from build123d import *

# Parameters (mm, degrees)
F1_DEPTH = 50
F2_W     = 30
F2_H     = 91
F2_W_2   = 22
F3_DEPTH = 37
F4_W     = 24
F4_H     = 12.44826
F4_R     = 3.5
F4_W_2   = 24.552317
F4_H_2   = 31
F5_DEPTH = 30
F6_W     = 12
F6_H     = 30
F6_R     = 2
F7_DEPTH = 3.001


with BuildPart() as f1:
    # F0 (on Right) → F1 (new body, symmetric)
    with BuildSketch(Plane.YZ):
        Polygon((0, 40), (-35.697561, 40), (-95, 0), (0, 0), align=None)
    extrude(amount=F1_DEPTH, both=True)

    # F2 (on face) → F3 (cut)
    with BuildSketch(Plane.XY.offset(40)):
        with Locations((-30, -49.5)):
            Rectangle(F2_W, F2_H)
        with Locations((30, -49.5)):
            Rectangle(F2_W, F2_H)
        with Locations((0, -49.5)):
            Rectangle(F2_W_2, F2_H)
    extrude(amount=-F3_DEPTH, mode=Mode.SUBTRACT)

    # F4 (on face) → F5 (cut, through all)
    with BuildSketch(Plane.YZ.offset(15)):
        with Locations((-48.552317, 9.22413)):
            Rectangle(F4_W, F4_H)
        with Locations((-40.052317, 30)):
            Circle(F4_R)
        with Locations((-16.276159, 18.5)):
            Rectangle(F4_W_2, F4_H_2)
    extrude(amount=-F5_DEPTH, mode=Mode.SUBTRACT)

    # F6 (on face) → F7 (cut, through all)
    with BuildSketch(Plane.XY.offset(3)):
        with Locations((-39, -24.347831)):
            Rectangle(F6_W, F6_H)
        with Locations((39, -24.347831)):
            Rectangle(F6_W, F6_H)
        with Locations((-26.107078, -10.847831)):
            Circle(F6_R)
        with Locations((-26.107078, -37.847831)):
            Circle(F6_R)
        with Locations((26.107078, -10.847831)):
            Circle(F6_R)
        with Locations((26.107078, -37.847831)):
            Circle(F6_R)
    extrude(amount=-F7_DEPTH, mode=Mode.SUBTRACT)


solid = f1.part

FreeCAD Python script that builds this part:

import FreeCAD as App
import Part
import Sketcher

V = App.Vector
Q = App.Units.Quantity


def add_polygon(sketch, points):
    """Adds a closed chain of lines whose ends are joined by coincident constraints."""
    first, n = sketch.GeometryCount, len(points)
    for a, b in zip(points, points[1:] + points[:1]):
        sketch.addGeometry(Part.LineSegment(App.Vector(*a, 0), App.Vector(*b, 0)), False)
    for i in range(n):
        sketch.addConstraint(Sketcher.Constraint("Coincident", first + i, 2, first + (i + 1) % n, 1))

doc = App.newDocument("Part")
body = doc.addObject("PartDesign::Body", "Body")

# Sketch on YZ plane
sketch1 = body.newObject("Sketcher::SketchObject", "Sketch")
sketch1.AttachmentSupport = (doc.getObject("YZ_Plane"), [""])
sketch1.MapMode = "FlatFace"
add_polygon(sketch1, [(0, 40), (-35.697561, 40), (-95, 0), (0, 0)])  # lines 0-3
sketch1.addConstraint([
    Sketcher.Constraint("Horizontal", 0),
    Sketcher.Constraint("Horizontal", 2),
    Sketcher.Constraint("Vertical", 3),
    Sketcher.Constraint("Coincident", 2, 2, -1, 1),
    Sketcher.Constraint("DistanceX", 2, 1, 2, 2, Q("95 mm")),
    Sketcher.Constraint("DistanceY", 3, 1, 3, 2, Q("40 mm")),
    Sketcher.Constraint("Angle", 1, Q("-146 deg")),
])
pad1 = body.newObject("PartDesign::Pad", "Pad")
pad1.Profile = sketch1
pad1.Length = 100
pad1.Midplane = True

# Sketch on XY plane
sketch2 = body.newObject("Sketcher::SketchObject", "Sketch001")
sketch2.AttachmentSupport = (doc.getObject("XY_Plane"), [""])
sketch2.MapMode = "FlatFace"
sketch2.AttachmentOffset = App.Placement(V(0, 0, 40), App.Rotation())
add_polygon(sketch2, [(-45, -4), (-45, -95), (-15, -95), (-15, -4)])  # lines 0-3
add_polygon(sketch2, [(15, -4), (15, -95), (45, -95), (45, -4)])  # lines 4-7
add_polygon(sketch2, [(-11, -4), (-11, -95), (11, -95), (11, -4)])  # lines 8-11
sketch2.addConstraint([
    Sketcher.Constraint("Vertical", 0),
    Sketcher.Constraint("Horizontal", 1),
    Sketcher.Constraint("Vertical", 2),
    Sketcher.Constraint("Horizontal", 3),
    Sketcher.Constraint("Vertical", 4),
    Sketcher.Constraint("Horizontal", 5),
    Sketcher.Constraint("Vertical", 6),
    Sketcher.Constraint("Horizontal", 7),
    Sketcher.Constraint("Vertical", 8),
    Sketcher.Constraint("Horizontal", 9),
    Sketcher.Constraint("Vertical", 10),
    Sketcher.Constraint("Horizontal", 11),
    Sketcher.Constraint("Symmetric", 1, 2, 4, 2, -2),
    Sketcher.Constraint("Symmetric", 3, 2, 6, 2, -2),
    Sketcher.Constraint("Horizontal", 5, 2, 8, 2),
    Sketcher.Constraint("Horizontal", 7, 2, 10, 2),
    Sketcher.Constraint("DistanceX", 1, 1, 1, 2, Q("30 mm")),
    Sketcher.Constraint("DistanceX", 9, 1, 9, 2, Q("22 mm")),
    Sketcher.Constraint("DistanceY", 0, 2, 0, 1, Q("91 mm")),
    Sketcher.Constraint("DistanceX", 0, 2, -1, 1, Q("45 mm")),
    Sketcher.Constraint("DistanceY", 0, 2, -1, 1, Q("95 mm")),
    Sketcher.Constraint("DistanceX", 8, 2, -1, 1, Q("11 mm")),
])
pocket1 = body.newObject("PartDesign::Pocket", "Pocket")
pocket1.Profile = sketch2
pocket1.Length = 37

# Sketch on YZ plane
sketch3 = body.newObject("Sketcher::SketchObject", "Sketch002")
sketch3.AttachmentSupport = (doc.getObject("YZ_Plane"), [""])
sketch3.MapMode = "FlatFace"
sketch3.AttachmentOffset = App.Placement(V(0, 0, 15), App.Rotation())
add_polygon(sketch3, [(-60.552317, 15.44826), (-60.552317, 3), (-36.552317, 3), (-36.552317, 15.44826)])  # lines 0-3
sketch3.addGeometry(Part.Circle(V(-40.052317, 30, 0), V(0, 0, 1), 3.5), False)  # 4
add_polygon(sketch3, [(-28.552318, 34), (-28.552318, 3), (-4, 3), (-4, 34)])  # lines 5-8
sketch3.addConstraint([
    Sketcher.Constraint("Vertical", 0),
    Sketcher.Constraint("Horizontal", 1),
    Sketcher.Constraint("Vertical", 2),
    Sketcher.Constraint("Horizontal", 3),
    Sketcher.Constraint("Vertical", 5),
    Sketcher.Constraint("Horizontal", 6),
    Sketcher.Constraint("Vertical", 7),
    Sketcher.Constraint("Horizontal", 8),
    Sketcher.Constraint("Horizontal", 1, 2, 5, 2),
    Sketcher.Constraint("Diameter", 4, Q("7 mm")),
    Sketcher.Constraint("DistanceX", 1, 1, 1, 2, Q("24 mm")),
    Sketcher.Constraint("DistanceY", 5, 2, 5, 1, Q("31 mm")),
    Sketcher.Constraint("DistanceY", -1, 1, 4, 3, Q("30 mm")),
    Sketcher.Constraint("DistanceY", -1, 1, 0, 2, Q("3 mm")),
    Sketcher.Constraint("DistanceX", 6, 2, -1, 1, Q("4 mm")),
    Sketcher.Constraint("DistanceX", 1, 2, 5, 2, Q("8 mm")),
    Sketcher.Constraint("DistanceX", 0, 2, 4, 3, Q("20.5 mm")),
    Sketcher.Constraint("DistanceY", 0, 2, 0, 1, Q("12.44826 mm")),
    Sketcher.Constraint("DistanceX", 6, 1, 6, 2, Q("24.552317 mm")),
])
pocket2 = body.newObject("PartDesign::Pocket", "Pocket001")
pocket2.Profile = sketch3
pocket2.Length = 30

# Sketch on XY plane
sketch4 = body.newObject("Sketcher::SketchObject", "Sketch003")
sketch4.AttachmentSupport = (doc.getObject("XY_Plane"), [""])
sketch4.MapMode = "FlatFace"
sketch4.AttachmentOffset = App.Placement(V(0, 0, 3), App.Rotation())
add_polygon(sketch4, [(-45, -9.347831), (-45, -39.347831), (-33, -39.347831), (-33, -9.347831)])  # lines 0-3
add_polygon(sketch4, [(33, -9.347831), (33, -39.347831), (45, -39.347831), (45, -9.347831)])  # lines 4-7
sketch4.addGeometry(Part.Circle(V(-26.107078, -10.847831, 0), V(0, 0, 1), 2), False)  # 8
sketch4.addGeometry(Part.Circle(V(-26.107078, -37.847831, 0), V(0, 0, 1), 2), False)  # 9
sketch4.addGeometry(Part.Circle(V(26.107078, -10.847831, 0), V(0, 0, 1), 2), False)  # 10
sketch4.addGeometry(Part.Circle(V(26.107078, -37.847831, 0), V(0, 0, 1), 2), False)  # 11
sketch4.addConstraint([
    Sketcher.Constraint("Vertical", 0),
    Sketcher.Constraint("Horizontal", 1),
    Sketcher.Constraint("Vertical", 2),
    Sketcher.Constraint("Horizontal", 3),
    Sketcher.Constraint("Vertical", 4),
    Sketcher.Constraint("Horizontal", 5),
    Sketcher.Constraint("Vertical", 6),
    Sketcher.Constraint("Horizontal", 7),
    Sketcher.Constraint("Equal", 8, 9),
    Sketcher.Constraint("Equal", 9, 10),
    Sketcher.Constraint("Equal", 10, 11),
    Sketcher.Constraint("Symmetric", 8, 3, 10, 3, -2),
    Sketcher.Constraint("Symmetric", 9, 3, 11, 3, -2),
    Sketcher.Constraint("Symmetric", 1, 2, 4, 2, -2),
    Sketcher.Constraint("Symmetric", 3, 2, 6, 2, -2),
    Sketcher.Constraint("Vertical", 8, 3, 9, 3),
    Sketcher.Constraint("Diameter", 8, Q("4 mm")),
    Sketcher.Constraint("DistanceX", 1, 1, 1, 2, Q("12 mm")),
    Sketcher.Constraint("DistanceY", 0, 2, 0, 1, Q("30 mm")),
    Sketcher.Constraint("DistanceX", 0, 2, -1, 1, Q("45 mm")),
    Sketcher.Constraint("DistanceY", 9, 3, 8, 3, Q("27 mm")),
    Sketcher.Constraint("DistanceY", 0, 2, 9, 3, Q("1.5 mm")),
    Sketcher.Constraint("DistanceX", 8, 3, -1, 1, Q("26.107078 mm")),
    Sketcher.Constraint("DistanceY", 8, 3, -1, 1, Q("10.847831 mm")),
])
pocket3 = body.newObject("PartDesign::Pocket", "Pocket002")
pocket3.Profile = sketch4
pocket3.Type = "ThroughAll"

doc.recompute()
